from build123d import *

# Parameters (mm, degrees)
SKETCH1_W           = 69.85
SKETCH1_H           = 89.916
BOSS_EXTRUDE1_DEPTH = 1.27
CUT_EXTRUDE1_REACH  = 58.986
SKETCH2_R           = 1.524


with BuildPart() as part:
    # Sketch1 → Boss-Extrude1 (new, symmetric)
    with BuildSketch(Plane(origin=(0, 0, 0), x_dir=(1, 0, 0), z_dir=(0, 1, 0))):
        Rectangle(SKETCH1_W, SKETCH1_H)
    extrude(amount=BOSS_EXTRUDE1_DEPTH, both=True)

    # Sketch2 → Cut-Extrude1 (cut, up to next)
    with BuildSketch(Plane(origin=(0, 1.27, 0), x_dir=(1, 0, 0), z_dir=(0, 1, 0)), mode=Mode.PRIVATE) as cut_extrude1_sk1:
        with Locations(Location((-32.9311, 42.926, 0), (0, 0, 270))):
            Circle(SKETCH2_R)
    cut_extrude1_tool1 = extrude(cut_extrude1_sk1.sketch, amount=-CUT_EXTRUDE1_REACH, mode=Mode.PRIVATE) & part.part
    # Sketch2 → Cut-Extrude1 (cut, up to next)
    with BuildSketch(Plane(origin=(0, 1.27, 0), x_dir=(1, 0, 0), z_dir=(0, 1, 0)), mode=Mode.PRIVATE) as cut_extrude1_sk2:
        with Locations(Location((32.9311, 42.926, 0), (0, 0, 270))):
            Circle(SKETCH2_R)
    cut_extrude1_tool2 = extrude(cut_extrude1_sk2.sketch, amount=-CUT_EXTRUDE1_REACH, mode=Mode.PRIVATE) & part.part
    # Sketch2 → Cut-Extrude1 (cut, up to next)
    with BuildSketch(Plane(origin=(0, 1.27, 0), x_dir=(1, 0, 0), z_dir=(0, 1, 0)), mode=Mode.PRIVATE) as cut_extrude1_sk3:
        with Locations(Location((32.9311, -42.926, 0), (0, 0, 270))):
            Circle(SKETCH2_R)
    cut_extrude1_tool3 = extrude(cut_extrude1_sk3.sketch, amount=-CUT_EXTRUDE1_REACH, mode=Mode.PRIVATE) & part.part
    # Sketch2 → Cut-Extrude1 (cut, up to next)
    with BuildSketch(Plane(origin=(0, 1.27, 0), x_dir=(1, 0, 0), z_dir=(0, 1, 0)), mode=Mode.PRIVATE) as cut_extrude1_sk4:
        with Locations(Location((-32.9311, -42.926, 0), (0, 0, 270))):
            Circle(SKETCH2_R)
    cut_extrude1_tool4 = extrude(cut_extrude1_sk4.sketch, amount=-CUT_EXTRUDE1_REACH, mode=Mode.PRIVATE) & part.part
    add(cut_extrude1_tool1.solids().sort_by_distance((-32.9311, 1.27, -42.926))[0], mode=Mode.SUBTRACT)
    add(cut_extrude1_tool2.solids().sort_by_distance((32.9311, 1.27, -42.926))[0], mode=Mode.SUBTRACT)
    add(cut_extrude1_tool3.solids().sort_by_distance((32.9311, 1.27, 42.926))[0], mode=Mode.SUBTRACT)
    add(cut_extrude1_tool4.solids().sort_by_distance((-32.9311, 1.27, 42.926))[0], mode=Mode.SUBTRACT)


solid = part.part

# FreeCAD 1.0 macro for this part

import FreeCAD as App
import Part
import Sketcher
from FreeCAD import Vector
Q = App.Units.Quantity

doc = App.newDocument("Part")
params = doc.addObject("Spreadsheet::Sheet", "Params")
for row, (alias, value) in enumerate([
    ("sketch1_width", "2.75 in"),
    ("sketch1_height", "3.54 in"),
    ("pad1_length", "0.1 in"),
    ("sketch2_diameter", "0.12 in"),
    ("sketch3_diameter", "0.12 in"),
    ("sketch4_diameter", "0.12 in"),
    ("sketch5_diameter", "0.12 in"),
], start=1):
    params.set(f"A{row}", alias)
    params.set(f"B{row}", "=" + value)
    params.setAlias(f"B{row}", alias)

body = doc.addObject("PartDesign::Body", "Body")

sketch1 = body.newObject("Sketcher::SketchObject", "Sketch")
sketch1.AttachmentSupport = (doc.getObject("XZ_Plane"), [""])
sketch1.MapMode = "FlatFace"
sketch1.addGeometry([
    Part.LineSegment(Vector(-35, -45, 0), Vector(-35, 45, 0)),
    Part.LineSegment(Vector(-35, 45, 0), Vector(35, 45, 0)),
    Part.LineSegment(Vector(35, 45, 0), Vector(35, -45, 0)),
    Part.LineSegment(Vector(35, -45, 0), Vector(-35, -45, 0)),
], False)
sketch1.addConstraint([
    Sketcher.Constraint("Coincident", 0, 2, 1, 1),
    Sketcher.Constraint("Coincident", 1, 2, 2, 1),
    Sketcher.Constraint("Coincident", 2, 2, 3, 1),
    Sketcher.Constraint("Coincident", 3, 2, 0, 1),
    Sketcher.Constraint("Vertical", 0),
    Sketcher.Constraint("Horizontal", 1),
    Sketcher.Constraint("Vertical", 2),
    Sketcher.Constraint("Horizontal", 3),
    Sketcher.Constraint("Symmetric", 0, 2, 2, 2, -1, 1),
    Sketcher.Constraint("DistanceX", 1, 1, 1, 2, Q("2.75 in")),
    Sketcher.Constraint("DistanceY", 0, 1, 0, 2, Q("3.54 in")),
])
sketch1.setExpression("Constraints[9]", "Params.sketch1_width")
sketch1.setExpression("Constraints[10]", "Params.sketch1_height")
pad1 = body.newObject("PartDesign::Pad", "Pad")
pad1.Profile = sketch1
pad1.setExpression("Length", "Params.pad1_length")
pad1.Midplane = True

sketch2 = body.newObject("Sketcher::SketchObject", "Sketch001")
sketch2.AttachmentSupport = (doc.getObject("XZ_Plane"), [""])
sketch2.MapMode = "FlatFace"
sketch2.AttachmentOffset = App.Placement(Vector(0, 0, -0.05 * 25.4), App.Rotation())
sketch2.addGeometry(Part.Circle(Vector(-32.9, -42.9, 0), Vector(0, 0, 1), 1.5), False)
sketch2.addConstraint([
    Sketcher.Constraint("Diameter", 0, Q("0.12 in")),
    Sketcher.Constraint("DistanceY", 0, 3, -1, 1, Q("1.69 in")),
    Sketcher.Constraint("DistanceX", 0, 3, -1, 1, Q("1.2965 in")),
])
sketch2.setExpression("Constraints[0]", "Params.sketch2_diameter")
pocket1 = body.newObject("PartDesign::Pocket", "Pocket")
pocket1.Profile = sketch2
pocket1.Type = "UpToFirst"
pocket1.Reversed = True

sketch3 = body.newObject("Sketcher::SketchObject", "Sketch002")
sketch3.AttachmentSupport = (doc.getObject("XZ_Plane"), [""])
sketch3.MapMode = "FlatFace"
sketch3.AttachmentOffset = App.Placement(Vector(0, 0, -0.05 * 25.4), App.Rotation())
sketch3.addGeometry(Part.Circle(Vector(32.9, -42.9, 0), Vector(0, 0, 1), 1.5), False)
sketch3.addConstraint([
    Sketcher.Constraint("Diameter", 0, Q("0.12 in")),
    Sketcher.Constraint("DistanceY", 0, 3, -1, 1, Q("1.69 in")),
    Sketcher.Constraint("DistanceX", -1, 1, 0, 3, Q("1.2965 in")),
])
sketch3.setExpression("Constraints[0]", "Params.sketch3_diameter")
pocket2 = body.newObject("PartDesign::Pocket", "Pocket001")
pocket2.Profile = sketch3
pocket2.Type = "UpToFirst"
pocket2.Reversed = True

sketch4 = body.newObject("Sketcher::SketchObject", "Sketch003")
sketch4.AttachmentSupport = (doc.getObject("XZ_Plane"), [""])
sketch4.MapMode = "FlatFace"
sketch4.AttachmentOffset = App.Placement(Vector(0, 0, -0.05 * 25.4), App.Rotation())
sketch4.addGeometry(Part.Circle(Vector(32.9, 42.9, 0), Vector(0, 0, 1), 1.5), False)
sketch4.addConstraint([
    Sketcher.Constraint("Diameter", 0, Q("0.12 in")),
    Sketcher.Constraint("DistanceY", -1, 1, 0, 3, Q("1.69 in")),
    Sketcher.Constraint("DistanceX", -1, 1, 0, 3, Q("1.2965 in")),
])
sketch4.setExpression("Constraints[0]", "Params.sketch4_diameter")
pocket3 = body.newObject("PartDesign::Pocket", "Pocket002")
pocket3.Profile = sketch4
pocket3.Type = "UpToFirst"
pocket3.Reversed = True

sketch5 = body.newObject("Sketcher::SketchObject", "Sketch004")
sketch5.AttachmentSupport = (doc.getObject("XZ_Plane"), [""])
sketch5.MapMode = "FlatFace"
sketch5.AttachmentOffset = App.Placement(Vector(0, 0, -0.05 * 25.4), App.Rotation())
sketch5.addGeometry(Part.Circle(Vector(-32.9, 42.9, 0), Vector(0, 0, 1), 1.5), False)
sketch5.addConstraint([
    Sketcher.Constraint("Diameter", 0, Q("0.12 in")),
    Sketcher.Constraint("DistanceY", -1, 1, 0, 3, Q("1.69 in")),
    Sketcher.Constraint("DistanceX", 0, 3, -1, 1, Q("1.2965 in")),
])
sketch5.setExpression("Constraints[0]", "Params.sketch5_diameter")
pocket4 = body.newObject("PartDesign::Pocket", "Pocket003")
pocket4.Profile = sketch5
pocket4.Type = "UpToFirst"
pocket4.Reversed = True

doc.recompute()
